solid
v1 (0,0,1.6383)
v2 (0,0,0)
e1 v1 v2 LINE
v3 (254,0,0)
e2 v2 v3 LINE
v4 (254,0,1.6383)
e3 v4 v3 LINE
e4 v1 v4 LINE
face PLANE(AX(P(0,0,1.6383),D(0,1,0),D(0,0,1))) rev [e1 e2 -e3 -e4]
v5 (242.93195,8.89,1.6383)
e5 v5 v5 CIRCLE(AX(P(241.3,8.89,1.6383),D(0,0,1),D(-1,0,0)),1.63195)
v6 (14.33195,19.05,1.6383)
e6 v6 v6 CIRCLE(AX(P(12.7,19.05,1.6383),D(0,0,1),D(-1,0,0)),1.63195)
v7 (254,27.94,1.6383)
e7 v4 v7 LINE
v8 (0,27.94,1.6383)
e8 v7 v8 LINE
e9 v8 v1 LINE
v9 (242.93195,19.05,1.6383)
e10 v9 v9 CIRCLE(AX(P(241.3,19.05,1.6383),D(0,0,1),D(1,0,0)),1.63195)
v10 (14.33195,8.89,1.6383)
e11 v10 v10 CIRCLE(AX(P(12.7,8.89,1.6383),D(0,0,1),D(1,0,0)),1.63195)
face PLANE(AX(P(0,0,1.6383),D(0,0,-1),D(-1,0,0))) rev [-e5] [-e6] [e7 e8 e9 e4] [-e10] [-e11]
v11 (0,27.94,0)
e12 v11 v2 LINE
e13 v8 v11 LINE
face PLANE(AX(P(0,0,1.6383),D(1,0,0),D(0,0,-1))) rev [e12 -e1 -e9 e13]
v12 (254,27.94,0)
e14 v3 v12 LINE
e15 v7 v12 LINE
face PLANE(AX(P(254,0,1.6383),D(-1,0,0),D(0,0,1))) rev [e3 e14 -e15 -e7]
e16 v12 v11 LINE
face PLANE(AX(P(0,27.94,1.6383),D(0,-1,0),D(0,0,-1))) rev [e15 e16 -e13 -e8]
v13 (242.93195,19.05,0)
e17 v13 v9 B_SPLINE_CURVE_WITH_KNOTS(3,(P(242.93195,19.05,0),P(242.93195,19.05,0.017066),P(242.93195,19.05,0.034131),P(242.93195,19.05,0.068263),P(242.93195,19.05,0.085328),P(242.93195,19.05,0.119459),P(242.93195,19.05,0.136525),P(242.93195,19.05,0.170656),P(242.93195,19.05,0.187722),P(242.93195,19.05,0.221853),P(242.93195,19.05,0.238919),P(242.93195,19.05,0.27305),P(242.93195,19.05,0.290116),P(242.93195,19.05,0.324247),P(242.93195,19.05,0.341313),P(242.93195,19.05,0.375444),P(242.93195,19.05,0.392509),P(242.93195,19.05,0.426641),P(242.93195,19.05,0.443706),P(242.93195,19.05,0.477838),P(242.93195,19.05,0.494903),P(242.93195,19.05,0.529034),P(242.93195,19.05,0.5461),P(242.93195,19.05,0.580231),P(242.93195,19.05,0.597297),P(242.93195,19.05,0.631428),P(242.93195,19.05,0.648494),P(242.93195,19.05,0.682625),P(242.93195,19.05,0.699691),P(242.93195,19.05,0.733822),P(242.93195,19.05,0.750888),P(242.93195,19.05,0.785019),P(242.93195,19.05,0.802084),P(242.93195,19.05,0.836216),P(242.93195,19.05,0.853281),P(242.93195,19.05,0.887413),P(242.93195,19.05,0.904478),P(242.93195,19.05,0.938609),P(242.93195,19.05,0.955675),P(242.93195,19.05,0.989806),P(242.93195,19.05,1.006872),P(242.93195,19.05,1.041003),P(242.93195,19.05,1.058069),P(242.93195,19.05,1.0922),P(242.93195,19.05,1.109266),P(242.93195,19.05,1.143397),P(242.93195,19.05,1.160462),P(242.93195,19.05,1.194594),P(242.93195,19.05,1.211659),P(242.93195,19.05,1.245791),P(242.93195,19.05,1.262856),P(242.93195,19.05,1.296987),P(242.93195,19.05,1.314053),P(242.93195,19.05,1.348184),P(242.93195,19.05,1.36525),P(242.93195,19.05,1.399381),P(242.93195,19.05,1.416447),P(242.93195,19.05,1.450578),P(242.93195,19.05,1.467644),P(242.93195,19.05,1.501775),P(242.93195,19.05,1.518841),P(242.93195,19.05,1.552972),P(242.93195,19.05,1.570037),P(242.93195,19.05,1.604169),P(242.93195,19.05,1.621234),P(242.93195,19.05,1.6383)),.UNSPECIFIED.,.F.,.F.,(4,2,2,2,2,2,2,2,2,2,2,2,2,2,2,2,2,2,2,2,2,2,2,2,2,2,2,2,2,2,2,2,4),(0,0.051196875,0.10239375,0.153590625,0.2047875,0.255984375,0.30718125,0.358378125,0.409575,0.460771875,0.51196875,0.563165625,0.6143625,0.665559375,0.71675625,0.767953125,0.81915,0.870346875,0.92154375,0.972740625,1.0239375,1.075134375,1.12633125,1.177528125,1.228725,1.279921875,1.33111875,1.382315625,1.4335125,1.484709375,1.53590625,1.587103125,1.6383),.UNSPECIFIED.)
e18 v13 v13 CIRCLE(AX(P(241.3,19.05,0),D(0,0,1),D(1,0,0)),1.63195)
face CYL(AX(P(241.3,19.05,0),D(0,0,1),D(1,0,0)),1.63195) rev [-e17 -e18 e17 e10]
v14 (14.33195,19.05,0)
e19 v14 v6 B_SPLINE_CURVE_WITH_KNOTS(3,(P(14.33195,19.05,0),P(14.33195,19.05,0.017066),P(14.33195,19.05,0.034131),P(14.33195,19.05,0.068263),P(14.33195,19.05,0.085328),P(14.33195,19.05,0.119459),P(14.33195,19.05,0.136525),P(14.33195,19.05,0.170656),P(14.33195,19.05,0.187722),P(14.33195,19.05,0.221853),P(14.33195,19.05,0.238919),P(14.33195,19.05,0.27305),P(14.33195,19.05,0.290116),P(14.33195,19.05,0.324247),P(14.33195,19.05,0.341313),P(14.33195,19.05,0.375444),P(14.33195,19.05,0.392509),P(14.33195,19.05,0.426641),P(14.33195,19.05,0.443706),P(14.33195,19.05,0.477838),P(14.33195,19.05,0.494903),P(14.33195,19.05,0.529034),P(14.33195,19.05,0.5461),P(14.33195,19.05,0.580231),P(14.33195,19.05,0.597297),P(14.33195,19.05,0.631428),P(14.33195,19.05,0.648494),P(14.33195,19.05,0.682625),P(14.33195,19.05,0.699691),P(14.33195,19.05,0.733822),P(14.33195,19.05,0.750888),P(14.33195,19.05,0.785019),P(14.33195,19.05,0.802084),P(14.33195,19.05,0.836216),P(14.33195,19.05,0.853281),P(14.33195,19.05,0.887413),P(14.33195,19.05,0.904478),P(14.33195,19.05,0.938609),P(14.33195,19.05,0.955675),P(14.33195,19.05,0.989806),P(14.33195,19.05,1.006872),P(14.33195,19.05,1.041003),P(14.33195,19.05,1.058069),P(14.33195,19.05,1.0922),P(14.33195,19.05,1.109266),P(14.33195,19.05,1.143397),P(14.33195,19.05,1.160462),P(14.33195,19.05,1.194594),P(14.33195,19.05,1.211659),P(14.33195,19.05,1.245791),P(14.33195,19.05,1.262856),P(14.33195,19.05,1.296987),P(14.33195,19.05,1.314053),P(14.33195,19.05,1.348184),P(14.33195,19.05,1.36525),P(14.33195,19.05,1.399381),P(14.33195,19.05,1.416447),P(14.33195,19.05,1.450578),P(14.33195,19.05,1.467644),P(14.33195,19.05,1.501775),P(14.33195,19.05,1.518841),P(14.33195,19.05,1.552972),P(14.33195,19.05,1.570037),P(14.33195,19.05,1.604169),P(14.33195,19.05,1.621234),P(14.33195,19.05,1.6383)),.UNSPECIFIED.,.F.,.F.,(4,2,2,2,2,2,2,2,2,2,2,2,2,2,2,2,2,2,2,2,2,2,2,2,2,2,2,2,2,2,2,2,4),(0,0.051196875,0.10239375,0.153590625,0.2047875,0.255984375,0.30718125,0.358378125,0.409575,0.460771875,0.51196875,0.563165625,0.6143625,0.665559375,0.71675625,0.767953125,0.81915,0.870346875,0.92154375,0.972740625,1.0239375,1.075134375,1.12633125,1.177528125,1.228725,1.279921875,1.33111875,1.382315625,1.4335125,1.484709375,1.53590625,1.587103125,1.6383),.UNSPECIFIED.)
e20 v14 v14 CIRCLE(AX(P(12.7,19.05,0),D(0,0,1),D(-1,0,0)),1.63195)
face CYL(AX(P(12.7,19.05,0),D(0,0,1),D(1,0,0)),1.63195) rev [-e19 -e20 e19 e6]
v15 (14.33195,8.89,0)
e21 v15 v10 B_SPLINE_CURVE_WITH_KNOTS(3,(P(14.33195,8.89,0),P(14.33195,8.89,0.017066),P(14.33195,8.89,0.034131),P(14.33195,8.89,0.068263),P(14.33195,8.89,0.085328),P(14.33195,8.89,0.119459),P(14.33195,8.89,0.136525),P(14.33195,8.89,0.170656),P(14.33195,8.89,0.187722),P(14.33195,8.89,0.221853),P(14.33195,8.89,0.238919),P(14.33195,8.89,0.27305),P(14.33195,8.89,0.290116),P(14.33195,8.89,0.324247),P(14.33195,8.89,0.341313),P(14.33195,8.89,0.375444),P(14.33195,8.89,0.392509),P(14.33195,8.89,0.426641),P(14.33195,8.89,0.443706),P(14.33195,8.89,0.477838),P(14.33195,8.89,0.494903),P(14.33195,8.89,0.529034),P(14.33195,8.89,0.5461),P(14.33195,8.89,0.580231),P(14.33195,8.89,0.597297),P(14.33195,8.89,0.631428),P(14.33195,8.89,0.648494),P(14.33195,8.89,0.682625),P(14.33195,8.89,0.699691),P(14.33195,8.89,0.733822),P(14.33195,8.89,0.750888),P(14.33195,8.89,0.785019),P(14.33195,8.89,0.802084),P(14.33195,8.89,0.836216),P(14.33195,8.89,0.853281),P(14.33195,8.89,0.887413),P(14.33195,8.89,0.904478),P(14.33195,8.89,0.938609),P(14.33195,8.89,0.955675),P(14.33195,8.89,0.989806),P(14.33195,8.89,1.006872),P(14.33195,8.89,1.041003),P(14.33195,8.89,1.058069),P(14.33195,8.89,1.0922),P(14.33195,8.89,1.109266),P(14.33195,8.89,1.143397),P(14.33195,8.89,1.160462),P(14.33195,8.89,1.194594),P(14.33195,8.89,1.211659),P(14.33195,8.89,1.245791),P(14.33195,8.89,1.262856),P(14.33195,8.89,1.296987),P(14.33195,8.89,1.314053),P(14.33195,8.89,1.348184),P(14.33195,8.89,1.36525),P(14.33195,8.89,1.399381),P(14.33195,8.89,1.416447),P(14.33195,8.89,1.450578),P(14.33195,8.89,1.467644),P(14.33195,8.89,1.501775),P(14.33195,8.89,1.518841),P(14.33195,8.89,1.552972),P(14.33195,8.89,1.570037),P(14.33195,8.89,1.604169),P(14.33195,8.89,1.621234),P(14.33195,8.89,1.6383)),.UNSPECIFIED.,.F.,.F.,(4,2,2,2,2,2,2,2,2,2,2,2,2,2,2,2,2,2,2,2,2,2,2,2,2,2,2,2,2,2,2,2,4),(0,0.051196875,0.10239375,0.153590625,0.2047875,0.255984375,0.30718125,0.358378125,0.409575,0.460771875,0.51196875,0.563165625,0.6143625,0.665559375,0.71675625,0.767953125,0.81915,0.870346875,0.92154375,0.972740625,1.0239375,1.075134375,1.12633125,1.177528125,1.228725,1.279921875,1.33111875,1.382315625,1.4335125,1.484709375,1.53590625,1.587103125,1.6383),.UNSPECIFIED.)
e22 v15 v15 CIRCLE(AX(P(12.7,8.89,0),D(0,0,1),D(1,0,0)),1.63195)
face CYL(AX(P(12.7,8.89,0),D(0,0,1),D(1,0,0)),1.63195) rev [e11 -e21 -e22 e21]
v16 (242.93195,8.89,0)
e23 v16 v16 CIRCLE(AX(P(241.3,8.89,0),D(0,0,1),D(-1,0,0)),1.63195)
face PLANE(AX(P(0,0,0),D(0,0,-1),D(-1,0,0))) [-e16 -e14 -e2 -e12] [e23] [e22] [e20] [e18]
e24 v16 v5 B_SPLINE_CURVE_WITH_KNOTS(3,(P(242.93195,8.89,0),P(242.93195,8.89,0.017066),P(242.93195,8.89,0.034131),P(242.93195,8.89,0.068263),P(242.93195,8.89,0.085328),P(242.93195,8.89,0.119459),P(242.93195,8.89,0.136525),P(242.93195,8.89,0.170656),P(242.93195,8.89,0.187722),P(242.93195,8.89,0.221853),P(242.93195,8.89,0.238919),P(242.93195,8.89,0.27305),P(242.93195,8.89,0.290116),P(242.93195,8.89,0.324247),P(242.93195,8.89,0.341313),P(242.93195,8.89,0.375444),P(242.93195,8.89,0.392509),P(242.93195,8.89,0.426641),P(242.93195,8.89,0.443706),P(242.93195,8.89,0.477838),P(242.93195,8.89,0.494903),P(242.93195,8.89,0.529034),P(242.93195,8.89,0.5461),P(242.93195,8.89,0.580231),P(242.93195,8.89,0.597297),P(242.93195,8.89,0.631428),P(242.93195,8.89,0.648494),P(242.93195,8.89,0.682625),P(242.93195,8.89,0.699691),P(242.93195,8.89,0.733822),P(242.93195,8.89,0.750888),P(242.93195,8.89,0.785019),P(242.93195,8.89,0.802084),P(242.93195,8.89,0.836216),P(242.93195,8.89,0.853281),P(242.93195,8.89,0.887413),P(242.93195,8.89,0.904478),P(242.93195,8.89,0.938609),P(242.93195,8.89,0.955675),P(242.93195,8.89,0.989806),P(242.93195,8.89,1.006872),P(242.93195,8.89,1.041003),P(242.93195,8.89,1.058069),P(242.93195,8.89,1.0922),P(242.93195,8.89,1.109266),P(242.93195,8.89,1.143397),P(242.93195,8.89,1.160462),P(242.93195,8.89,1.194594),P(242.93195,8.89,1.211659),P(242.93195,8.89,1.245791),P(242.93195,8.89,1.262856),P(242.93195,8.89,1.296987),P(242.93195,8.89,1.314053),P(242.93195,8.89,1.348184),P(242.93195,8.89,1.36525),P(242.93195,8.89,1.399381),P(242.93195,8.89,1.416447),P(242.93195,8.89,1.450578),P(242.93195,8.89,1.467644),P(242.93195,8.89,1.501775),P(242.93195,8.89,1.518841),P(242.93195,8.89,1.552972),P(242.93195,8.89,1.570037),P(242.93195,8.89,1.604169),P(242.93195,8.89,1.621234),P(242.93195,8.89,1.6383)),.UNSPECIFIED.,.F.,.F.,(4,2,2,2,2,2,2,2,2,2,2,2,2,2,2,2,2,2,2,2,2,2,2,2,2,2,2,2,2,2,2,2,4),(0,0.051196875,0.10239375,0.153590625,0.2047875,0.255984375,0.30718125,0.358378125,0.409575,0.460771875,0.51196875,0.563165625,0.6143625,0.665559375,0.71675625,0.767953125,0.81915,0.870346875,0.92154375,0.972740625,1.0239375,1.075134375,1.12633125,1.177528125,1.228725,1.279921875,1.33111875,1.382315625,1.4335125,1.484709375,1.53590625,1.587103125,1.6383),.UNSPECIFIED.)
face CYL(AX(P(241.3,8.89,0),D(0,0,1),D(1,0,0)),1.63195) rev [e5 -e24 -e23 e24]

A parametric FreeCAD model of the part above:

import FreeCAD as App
import Part
import Sketcher
Q = App.Units.Quantity


def add_polygon(sketch, points):
    """Adds a closed chain of lines whose ends are joined by coincident constraints."""
    first, n = sketch.GeometryCount, len(points)
    for a, b in zip(points, points[1:] + points[:1]):
        sketch.addGeometry(Part.LineSegment(App.Vector(*a, 0), App.Vector(*b, 0)), False)
    for i in range(n):
        sketch.addConstraint(Sketcher.Constraint("Coincident", first + i, 2, first + (i + 1) % n, 1))

doc = App.newDocument("Part")
body = doc.addObject("PartDesign::Body", "Body")

sketch1 = body.newObject("Sketcher::SketchObject", "Sketch")
sketch1.AttachmentSupport = (doc.getObject("XY_Plane"), [""])
sketch1.MapMode = "FlatFace"
add_polygon(sketch1, [(0, 27.94), (0, 0), (254, 0), (254, 27.94)])
sketch1.addConstraint([
    Sketcher.Constraint("Vertical", 0),
    Sketcher.Constraint("Horizontal", 1),
    Sketcher.Constraint("Vertical", 2),
    Sketcher.Constraint("Horizontal", 3),
    Sketcher.Constraint("Coincident", 0, 2, -1, 1),
    Sketcher.Constraint("DistanceX", 1, 1, 1, 2, Q("10 in")),
    Sketcher.Constraint("DistanceY", 0, 2, 0, 1, Q("1.1 in")),
])
pad1 = body.newObject("PartDesign::Pad", "Pad")
pad1.Profile = sketch1
pad1.Length = Q("0.0645 in")

sketch2 = body.newObject("Sketcher::SketchObject", "Sketch001")
sketch2.AttachmentSupport = (doc.getObject("XY_Plane"), [""])
sketch2.MapMode = "FlatFace"
sketch2.AttachmentOffset = App.Placement(App.Vector(0, 0, 0.0645 * 25.4), App.Rotation())
sketch2.addGeometry([
    Part.Circle(App.Vector(12.7, 8.89, 0), App.Vector(0, 0, 1), 1.63195),
    Part.Circle(App.Vector(12.7, 19.05, 0), App.Vector(0, 0, 1), 1.63195),
    Part.Circle(App.Vector(241.3, 8.89, 0), App.Vector(0, 0, 1), 1.63195),
    Part.Circle(App.Vector(241.3, 19.05, 0), App.Vector(0, 0, 1), 1.63195),
], False)
sketch2.addConstraint([
    Sketcher.Constraint("Equal", 0, 1),
    Sketcher.Constraint("Equal", 1, 2),
    Sketcher.Constraint("Equal", 2, 3),
    Sketcher.Constraint("Horizontal", 0, 3, 2, 3),
    Sketcher.Constraint("Horizontal", 1, 3, 3, 3),
    Sketcher.Constraint("Vertical", 0, 3, 1, 3),
    Sketcher.Constraint("Vertical", 2, 3, 3, 3),
    Sketcher.Constraint("DistanceX", 0, 3, 2, 3, Q("9 in")),
    Sketcher.Constraint("Diameter", 0, Q("0.1285 in")),
    Sketcher.Constraint("DistanceX", -1, 1, 0, 3, Q("0.5 in")),
    Sketcher.Constraint("DistanceY", 0, 3, 1, 3, Q("0.4 in")),
    Sketcher.Constraint("DistanceY", -1, 1, 0, 3, Q("0.35 in")),
])
pocket1 = body.newObject("PartDesign::Pocket", "Pocket")
pocket1.Profile = sketch2
pocket1.Type = "ThroughAll"

doc.recompute()
